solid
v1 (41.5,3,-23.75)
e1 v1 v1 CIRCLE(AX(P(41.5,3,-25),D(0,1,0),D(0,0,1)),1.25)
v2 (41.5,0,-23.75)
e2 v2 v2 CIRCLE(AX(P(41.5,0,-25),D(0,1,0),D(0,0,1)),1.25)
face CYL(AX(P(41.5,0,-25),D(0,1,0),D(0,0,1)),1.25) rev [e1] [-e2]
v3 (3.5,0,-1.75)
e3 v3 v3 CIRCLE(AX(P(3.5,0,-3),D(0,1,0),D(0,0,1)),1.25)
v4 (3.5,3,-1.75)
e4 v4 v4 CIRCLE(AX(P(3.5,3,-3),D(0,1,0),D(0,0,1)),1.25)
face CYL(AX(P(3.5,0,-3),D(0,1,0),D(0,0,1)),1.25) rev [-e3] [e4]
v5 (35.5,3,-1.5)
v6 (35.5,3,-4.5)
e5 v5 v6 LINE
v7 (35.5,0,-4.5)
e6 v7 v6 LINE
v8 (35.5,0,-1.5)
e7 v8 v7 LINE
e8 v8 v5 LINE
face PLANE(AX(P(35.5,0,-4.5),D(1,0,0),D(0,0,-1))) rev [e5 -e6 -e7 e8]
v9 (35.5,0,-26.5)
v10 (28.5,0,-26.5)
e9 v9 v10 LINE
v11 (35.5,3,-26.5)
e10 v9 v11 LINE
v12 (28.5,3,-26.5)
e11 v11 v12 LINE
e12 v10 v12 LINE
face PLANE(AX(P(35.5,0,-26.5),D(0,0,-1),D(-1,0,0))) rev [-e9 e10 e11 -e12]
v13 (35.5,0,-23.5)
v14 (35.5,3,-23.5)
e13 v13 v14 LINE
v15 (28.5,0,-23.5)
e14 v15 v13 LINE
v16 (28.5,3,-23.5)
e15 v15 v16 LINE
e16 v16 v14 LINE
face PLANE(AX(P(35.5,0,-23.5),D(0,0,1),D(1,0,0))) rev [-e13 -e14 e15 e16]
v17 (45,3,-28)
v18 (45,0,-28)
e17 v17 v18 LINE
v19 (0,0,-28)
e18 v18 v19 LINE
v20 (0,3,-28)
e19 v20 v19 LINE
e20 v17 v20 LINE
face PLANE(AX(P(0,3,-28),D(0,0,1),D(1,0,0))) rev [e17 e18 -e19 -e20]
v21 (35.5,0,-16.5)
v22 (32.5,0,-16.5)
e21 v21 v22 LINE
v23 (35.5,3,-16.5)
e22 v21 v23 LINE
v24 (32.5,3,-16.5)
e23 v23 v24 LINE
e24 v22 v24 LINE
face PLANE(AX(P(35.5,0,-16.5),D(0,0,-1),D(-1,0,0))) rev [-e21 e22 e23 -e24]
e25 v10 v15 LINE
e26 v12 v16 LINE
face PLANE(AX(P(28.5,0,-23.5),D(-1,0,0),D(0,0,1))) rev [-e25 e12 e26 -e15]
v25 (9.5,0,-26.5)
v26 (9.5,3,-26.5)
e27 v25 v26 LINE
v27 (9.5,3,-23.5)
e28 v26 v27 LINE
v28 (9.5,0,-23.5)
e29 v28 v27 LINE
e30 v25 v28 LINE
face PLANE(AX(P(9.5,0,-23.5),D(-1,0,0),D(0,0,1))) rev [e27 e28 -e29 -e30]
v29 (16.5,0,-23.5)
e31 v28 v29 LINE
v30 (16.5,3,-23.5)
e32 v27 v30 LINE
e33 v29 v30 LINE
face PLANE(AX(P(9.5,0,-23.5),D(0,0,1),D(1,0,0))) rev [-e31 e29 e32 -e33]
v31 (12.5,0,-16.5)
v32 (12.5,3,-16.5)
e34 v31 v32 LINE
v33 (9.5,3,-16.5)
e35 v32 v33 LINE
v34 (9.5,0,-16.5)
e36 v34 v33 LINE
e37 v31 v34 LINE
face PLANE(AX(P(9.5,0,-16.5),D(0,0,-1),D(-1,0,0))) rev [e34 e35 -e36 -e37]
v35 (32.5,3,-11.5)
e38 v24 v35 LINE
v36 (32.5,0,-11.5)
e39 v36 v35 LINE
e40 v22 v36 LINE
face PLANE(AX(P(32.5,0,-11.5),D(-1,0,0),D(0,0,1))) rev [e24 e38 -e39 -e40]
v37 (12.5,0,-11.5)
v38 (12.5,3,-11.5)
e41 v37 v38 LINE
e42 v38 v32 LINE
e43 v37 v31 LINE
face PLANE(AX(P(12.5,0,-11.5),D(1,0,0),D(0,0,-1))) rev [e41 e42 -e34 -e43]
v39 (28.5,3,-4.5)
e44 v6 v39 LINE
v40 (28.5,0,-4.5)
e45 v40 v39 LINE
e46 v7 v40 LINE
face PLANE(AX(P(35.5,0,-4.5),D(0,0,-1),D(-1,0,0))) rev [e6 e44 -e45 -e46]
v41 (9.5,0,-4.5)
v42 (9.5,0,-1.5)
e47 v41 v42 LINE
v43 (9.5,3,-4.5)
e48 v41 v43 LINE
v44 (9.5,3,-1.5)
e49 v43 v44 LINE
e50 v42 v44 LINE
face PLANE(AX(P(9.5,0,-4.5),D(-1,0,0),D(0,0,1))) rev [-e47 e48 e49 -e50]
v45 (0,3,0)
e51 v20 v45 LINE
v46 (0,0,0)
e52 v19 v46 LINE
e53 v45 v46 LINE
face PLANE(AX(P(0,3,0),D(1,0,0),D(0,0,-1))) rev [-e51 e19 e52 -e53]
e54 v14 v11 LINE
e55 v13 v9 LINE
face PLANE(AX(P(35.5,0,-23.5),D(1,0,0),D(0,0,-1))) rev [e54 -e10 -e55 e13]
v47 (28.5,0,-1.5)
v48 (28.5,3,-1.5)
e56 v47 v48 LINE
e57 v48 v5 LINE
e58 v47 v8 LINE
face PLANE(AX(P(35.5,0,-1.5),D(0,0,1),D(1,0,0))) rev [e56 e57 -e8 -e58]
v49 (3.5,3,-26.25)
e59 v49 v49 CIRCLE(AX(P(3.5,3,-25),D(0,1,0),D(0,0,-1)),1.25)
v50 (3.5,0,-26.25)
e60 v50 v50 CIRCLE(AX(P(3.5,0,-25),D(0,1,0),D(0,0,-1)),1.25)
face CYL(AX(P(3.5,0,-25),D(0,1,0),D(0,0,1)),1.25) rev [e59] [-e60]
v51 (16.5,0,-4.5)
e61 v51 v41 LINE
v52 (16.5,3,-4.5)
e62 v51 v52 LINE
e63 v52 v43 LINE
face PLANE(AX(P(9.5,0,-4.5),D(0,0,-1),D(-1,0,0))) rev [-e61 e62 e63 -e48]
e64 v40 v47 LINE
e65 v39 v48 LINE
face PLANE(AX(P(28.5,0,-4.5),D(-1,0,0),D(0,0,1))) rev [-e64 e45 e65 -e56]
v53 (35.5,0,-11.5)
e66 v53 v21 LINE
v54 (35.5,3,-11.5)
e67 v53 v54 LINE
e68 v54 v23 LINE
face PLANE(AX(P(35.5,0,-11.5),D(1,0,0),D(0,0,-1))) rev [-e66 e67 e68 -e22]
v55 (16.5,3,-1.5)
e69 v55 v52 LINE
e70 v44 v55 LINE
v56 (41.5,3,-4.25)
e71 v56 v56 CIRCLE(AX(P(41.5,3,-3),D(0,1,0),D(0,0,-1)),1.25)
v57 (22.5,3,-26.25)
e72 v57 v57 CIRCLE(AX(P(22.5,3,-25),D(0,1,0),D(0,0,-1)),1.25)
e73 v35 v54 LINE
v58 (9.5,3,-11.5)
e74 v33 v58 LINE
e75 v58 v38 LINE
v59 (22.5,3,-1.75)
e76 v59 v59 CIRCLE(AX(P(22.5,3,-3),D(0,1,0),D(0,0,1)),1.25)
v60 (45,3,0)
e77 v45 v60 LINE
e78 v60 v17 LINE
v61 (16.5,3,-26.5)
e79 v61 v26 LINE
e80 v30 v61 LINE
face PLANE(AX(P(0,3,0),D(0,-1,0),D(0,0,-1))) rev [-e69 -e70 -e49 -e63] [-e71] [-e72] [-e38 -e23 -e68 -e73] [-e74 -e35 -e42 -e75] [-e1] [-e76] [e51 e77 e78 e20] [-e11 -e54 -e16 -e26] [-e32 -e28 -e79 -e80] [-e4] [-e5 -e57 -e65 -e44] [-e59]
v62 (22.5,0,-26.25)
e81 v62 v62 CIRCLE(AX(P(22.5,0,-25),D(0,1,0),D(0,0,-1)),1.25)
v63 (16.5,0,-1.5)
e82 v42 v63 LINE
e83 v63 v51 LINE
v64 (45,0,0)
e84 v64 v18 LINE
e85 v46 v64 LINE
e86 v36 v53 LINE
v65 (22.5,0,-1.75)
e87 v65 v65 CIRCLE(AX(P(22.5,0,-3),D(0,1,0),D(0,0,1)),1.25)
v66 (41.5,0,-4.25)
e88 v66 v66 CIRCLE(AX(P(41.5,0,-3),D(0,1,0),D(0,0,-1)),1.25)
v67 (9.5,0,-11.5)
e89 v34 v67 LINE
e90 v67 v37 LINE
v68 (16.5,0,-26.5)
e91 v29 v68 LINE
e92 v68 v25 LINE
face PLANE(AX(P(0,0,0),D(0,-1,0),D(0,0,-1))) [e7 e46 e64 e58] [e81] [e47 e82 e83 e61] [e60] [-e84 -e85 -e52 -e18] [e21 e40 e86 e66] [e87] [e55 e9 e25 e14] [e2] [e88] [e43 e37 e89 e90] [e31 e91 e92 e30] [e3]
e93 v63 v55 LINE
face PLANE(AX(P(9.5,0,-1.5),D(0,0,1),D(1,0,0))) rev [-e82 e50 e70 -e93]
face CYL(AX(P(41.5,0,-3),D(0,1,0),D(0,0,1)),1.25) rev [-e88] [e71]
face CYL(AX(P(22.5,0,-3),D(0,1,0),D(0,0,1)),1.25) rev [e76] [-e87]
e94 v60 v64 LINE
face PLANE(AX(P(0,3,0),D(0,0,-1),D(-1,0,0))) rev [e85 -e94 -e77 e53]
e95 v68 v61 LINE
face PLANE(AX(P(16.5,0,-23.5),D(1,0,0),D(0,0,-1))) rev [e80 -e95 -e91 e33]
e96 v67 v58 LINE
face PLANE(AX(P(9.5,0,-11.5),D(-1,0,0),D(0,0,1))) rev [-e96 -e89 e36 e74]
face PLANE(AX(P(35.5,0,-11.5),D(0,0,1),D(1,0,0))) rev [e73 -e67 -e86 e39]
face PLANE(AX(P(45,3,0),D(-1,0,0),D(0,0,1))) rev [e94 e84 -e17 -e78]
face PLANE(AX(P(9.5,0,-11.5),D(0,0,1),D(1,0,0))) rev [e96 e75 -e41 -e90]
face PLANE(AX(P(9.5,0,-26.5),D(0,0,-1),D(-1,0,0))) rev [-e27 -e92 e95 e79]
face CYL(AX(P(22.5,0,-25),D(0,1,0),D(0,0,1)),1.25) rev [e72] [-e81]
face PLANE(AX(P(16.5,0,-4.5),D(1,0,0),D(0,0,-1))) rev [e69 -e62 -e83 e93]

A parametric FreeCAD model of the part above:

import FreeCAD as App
import Part
import Sketcher
from FreeCAD import Vector
Q = App.Units.Quantity

doc = App.newDocument("Part")
body = doc.addObject("PartDesign::Body", "Body")

sketch1 = doc.addObject("Sketcher::SketchObject", "Sketch")
body.addObject(sketch1)
sketch1.AttachmentSupport = (doc.XZ_Plane, [""])
sketch1.MapMode = "FlatFace"
sketch1.addGeometry([
    Part.LineSegment(Vector(0, -28, 0), Vector(0, 0, 0)),
    Part.LineSegment(Vector(0, 0, 0), Vector(45, 0, 0)),
    Part.LineSegment(Vector(45, 0, 0), Vector(45, -28, 0)),
    Part.LineSegment(Vector(45, -28, 0), Vector(0, -28, 0)),
], False)
sketch1.addConstraint([
    Sketcher.Constraint("Coincident", 0, 2, 1, 1),
    Sketcher.Constraint("Coincident", 1, 2, 2, 1),
    Sketcher.Constraint("Coincident", 2, 2, 3, 1),
    Sketcher.Constraint("Coincident", 3, 2, 0, 1),
    Sketcher.Constraint("Vertical", 0),
    Sketcher.Constraint("Horizontal", 1),
    Sketcher.Constraint("Vertical", 2),
    Sketcher.Constraint("Horizontal", 3),
    Sketcher.Constraint("Coincident", 0, 2, -1, 1),
    Sketcher.Constraint("DistanceX", 1, 1, 1, 2, Q("45 mm")),
    Sketcher.Constraint("DistanceY", 0, 1, 0, 2, Q("28 mm")),
])
pad1 = doc.addObject("PartDesign::Pad", "Pad")
body.addObject(pad1)
pad1.Profile = sketch1
pad1.Length = 3
pad1.Reversed = True

sketch2 = doc.addObject("Sketcher::SketchObject", "Sketch001")
body.addObject(sketch2)
sketch2.AttachmentSupport = (doc.XZ_Plane, [""])
sketch2.MapMode = "FlatFace"
sketch2.AttachmentOffset = App.Placement(Vector(0, 0, -3), App.Rotation())
sketch2.addGeometry([
    Part.Circle(Vector(22.5, -3, 0), Vector(0, 0, 1), 1.2),
    Part.Circle(Vector(22.5, -25, 0), Vector(0, 0, 1), 1.2),
    Part.Circle(Vector(3.5, -3, 0), Vector(0, 0, 1), 1.2),
    Part.Circle(Vector(41.5, -3, 0), Vector(0, 0, 1), 1.2),
    Part.Circle(Vector(41.5, -25, 0), Vector(0, 0, 1), 1.2),
    Part.Circle(Vector(3.5, -25, 0), Vector(0, 0, 1), 1.2),
    Part.LineSegment(Vector(28.5, -4.5, 0), Vector(28.5, -1.5, 0)),
    Part.LineSegment(Vector(28.5, -1.5, 0), Vector(35.5, -1.5, 0)),
    Part.LineSegment(Vector(35.5, -1.5, 0), Vector(35.5, -4.5, 0)),
    Part.LineSegment(Vector(35.5, -4.5, 0), Vector(28.5, -4.5, 0)),
    Part.LineSegment(Vector(9.5, -4.5, 0), Vector(9.5, -1.5, 0)),
    Part.LineSegment(Vector(9.5, -1.5, 0), Vector(16.5, -1.5, 0)),
    Part.LineSegment(Vector(16.5, -1.5, 0), Vector(16.5, -4.5, 0)),
    Part.LineSegment(Vector(16.5, -4.5, 0), Vector(9.5, -4.5, 0)),
    Part.LineSegment(Vector(28.5, -26.5, 0), Vector(28.5, -23.5, 0)),
    Part.LineSegment(Vector(28.5, -23.5, 0), Vector(35.5, -23.5, 0)),
    Part.LineSegment(Vector(35.5, -23.5, 0), Vector(35.5, -26.5, 0)),
    Part.LineSegment(Vector(35.5, -26.5, 0), Vector(28.5, -26.5, 0)),
    Part.LineSegment(Vector(9.5, -26.5, 0), Vector(9.5, -23.5, 0)),
    Part.LineSegment(Vector(9.5, -23.5, 0), Vector(16.5, -23.5, 0)),
    Part.LineSegment(Vector(16.5, -23.5, 0), Vector(16.5, -26.5, 0)),
    Part.LineSegment(Vector(16.5, -26.5, 0), Vector(9.5, -26.5, 0)),
], False)
sketch2.addConstraint([
    Sketcher.Constraint("Coincident", 6, 2, 7, 1),
    Sketcher.Constraint("Coincident", 7, 2, 8, 1),
    Sketcher.Constraint("Coincident", 8, 2, 9, 1),
    Sketcher.Constraint("Coincident", 9, 2, 6, 1),
    Sketcher.Constraint("Coincident", 10, 2, 11, 1),
    Sketcher.Constraint("Coincident", 11, 2, 12, 1),
    Sketcher.Constraint("Coincident", 12, 2, 13, 1),
    Sketcher.Constraint("Coincident", 13, 2, 10, 1),
    Sketcher.Constraint("Coincident", 14, 2, 15, 1),
    Sketcher.Constraint("Coincident", 15, 2, 16, 1),
    Sketcher.Constraint("Coincident", 16, 2, 17, 1),
    Sketcher.Constraint("Coincident", 17, 2, 14, 1),
    Sketcher.Constraint("Coincident", 18, 2, 19, 1),
    Sketcher.Constraint("Coincident", 19, 2, 20, 1),
    Sketcher.Constraint("Coincident", 20, 2, 21, 1),
    Sketcher.Constraint("Coincident", 21, 2, 18, 1),
    Sketcher.Constraint("Vertical", 6),
    Sketcher.Constraint("Horizontal", 7),
    Sketcher.Constraint("Vertical", 8),
    Sketcher.Constraint("Horizontal", 9),
    Sketcher.Constraint("Vertical", 10),
    Sketcher.Constraint("Horizontal", 11),
    Sketcher.Constraint("Vertical", 12),
    Sketcher.Constraint("Horizontal", 13),
    Sketcher.Constraint("Vertical", 14),
    Sketcher.Constraint("Horizontal", 15),
    Sketcher.Constraint("Vertical", 16),
    Sketcher.Constraint("Horizontal", 17),
    Sketcher.Constraint("Vertical", 18),
    Sketcher.Constraint("Horizontal", 19),
    Sketcher.Constraint("Vertical", 20),
    Sketcher.Constraint("Horizontal", 21),
    Sketcher.Constraint("Equal", 0, 1),
    Sketcher.Constraint("Equal", 1, 2),
    Sketcher.Constraint("Equal", 2, 3),
    Sketcher.Constraint("Equal", 3, 4),
    Sketcher.Constraint("Equal", 4, 5),
    Sketcher.Constraint("Horizontal", 0, 3, 2, 3),
    Sketcher.Constraint("Horizontal", 2, 3, 3, 3),
    Sketcher.Constraint("Horizontal", 1, 3, 4, 3),
    Sketcher.Constraint("Horizontal", 4, 3, 5, 3),
    Sketcher.Constraint("Horizontal", 7, 2, 10, 2),
    Sketcher.Constraint("Horizontal", 9, 2, 12, 2),
    Sketcher.Constraint("Horizontal", 15, 2, 18, 2),
    Sketcher.Constraint("Horizontal", 17, 2, 20, 2),
    Sketcher.Constraint("Vertical", 0, 3, 1, 3),
    Sketcher.Constraint("Vertical", 3, 3, 4, 3),
    Sketcher.Constraint("Vertical", 2, 3, 5, 3),
    Sketcher.Constraint("Vertical", 9, 2, 14, 2),
    Sketcher.Constraint("Vertical", 8, 2, 15, 2),
    Sketcher.Constraint("Vertical", 13, 2, 18, 2),
    Sketcher.Constraint("Vertical", 12, 2, 19, 2),
    Sketcher.Constraint("Equal", 9, 11),
    Sketcher.Constraint("Equal", 12, 14),
    Sketcher.Constraint("Diameter", 0, Q("2.5 mm")),
    Sketcher.Constraint("DistanceX", 7, 1, 7, 2, Q("7 mm")),
    Sketcher.Constraint("DistanceY", 6, 1, 6, 2, Q("3 mm")),
    Sketcher.Constraint("DistanceY", 0, 3, -1, 1, Q("3 mm")),
    Sketcher.Constraint("DistanceY", 1, 3, -1, 1, Q("25 mm")),
    Sketcher.Constraint("DistanceX", 2, 3, 0, 3, Q("19 mm")),
    Sketcher.Constraint("DistanceX", 0, 3, 3, 3, Q("19 mm")),
    Sketcher.Constraint("DistanceX", 0, 3, 6, 2, Q("6 mm")),
    Sketcher.Constraint("DistanceX", 2, 3, 10, 2, Q("6 mm")),
    Sketcher.Constraint("DistanceY", 14, 2, 9, 2, Q("19 mm")),
    Sketcher.Constraint("DistanceX", -1, 1, 0, 3, Q("22.5 mm")),
    Sketcher.Constraint("DistanceY", 6, 2, -1, 1, Q("1.5 mm")),
])
pocket1 = doc.addObject("PartDesign::Pocket", "Pocket")
body.addObject(pocket1)
pocket1.Profile = sketch2
pocket1.Type = "ThroughAll"
pocket1.Reversed = True

sketch3 = doc.addObject("Sketcher::SketchObject", "Sketch002")
body.addObject(sketch3)
sketch3.AttachmentSupport = (doc.XZ_Plane, [""])
sketch3.MapMode = "FlatFace"
sketch3.AttachmentOffset = App.Placement(Vector(0, 0, -3), App.Rotation())
sketch3.addGeometry([
    Part.LineSegment(Vector(9.5, -16.5, 0), Vector(9.5, -11.5, 0)),
    Part.LineSegment(Vector(9.5, -11.5, 0), Vector(12.5, -11.5, 0)),
    Part.LineSegment(Vector(12.5, -11.5, 0), Vector(12.5, -16.5, 0)),
    Part.LineSegment(Vector(12.5, -16.5, 0), Vector(9.5, -16.5, 0)),
    Part.LineSegment(Vector(32.5, -16.5, 0), Vector(32.5, -11.5, 0)),
    Part.LineSegment(Vector(32.5, -11.5, 0), Vector(35.5, -11.5, 0)),
    Part.LineSegment(Vector(35.5, -11.5, 0), Vector(35.5, -16.5, 0)),
    Part.LineSegment(Vector(35.5, -16.5, 0), Vector(32.5, -16.5, 0)),
], False)
sketch3.addConstraint([
    Sketcher.Constraint("Coincident", 0, 2, 1, 1),
    Sketcher.Constraint("Coincident", 1, 2, 2, 1),
    Sketcher.Constraint("Coincident", 2, 2, 3, 1),
    Sketcher.Constraint("Coincident", 3, 2, 0, 1),
    Sketcher.Constraint("Coincident", 4, 2, 5, 1),
    Sketcher.Constraint("Coincident", 5, 2, 6, 1),
    Sketcher.Constraint("Coincident", 6, 2, 7, 1),
    Sketcher.Constraint("Coincident", 7, 2, 4, 1),
    Sketcher.Constraint("Vertical", 0),
    Sketcher.Constraint("Horizontal", 1),
    Sketcher.Constraint("Vertical", 2),
    Sketcher.Constraint("Horizontal", 3),
    Sketcher.Constraint("Vertical", 4),
    Sketcher.Constraint("Horizontal", 5),
    Sketcher.Constraint("Vertical", 6),
    Sketcher.Constraint("Horizontal", 7),
    Sketcher.Constraint("Horizontal", 1, 2, 4, 2),
    Sketcher.Constraint("Horizontal", 3, 2, 6, 2),
    Sketcher.Constraint("Equal", 3, 5),
    Sketcher.Constraint("DistanceX", 1, 1, 1, 2, Q("3 mm")),
    Sketcher.Constraint("DistanceY", 0, 1, 0, 2, Q("5 mm")),
    Sketcher.Constraint("DistanceX", 1, 2, 4, 2, Q("20 mm")),
    Sketcher.Constraint("DistanceX", -1, 1, 0, 2, Q("9.5 mm")),
    Sketcher.Constraint("DistanceY", 0, 2, -1, 1, Q("11.5 mm")),
])
pocket2 = doc.addObject("PartDesign::Pocket", "Pocket001")
body.addObject(pocket2)
pocket2.Profile = sketch3
pocket2.Type = "ThroughAll"
pocket2.Reversed = True

doc.recompute()
